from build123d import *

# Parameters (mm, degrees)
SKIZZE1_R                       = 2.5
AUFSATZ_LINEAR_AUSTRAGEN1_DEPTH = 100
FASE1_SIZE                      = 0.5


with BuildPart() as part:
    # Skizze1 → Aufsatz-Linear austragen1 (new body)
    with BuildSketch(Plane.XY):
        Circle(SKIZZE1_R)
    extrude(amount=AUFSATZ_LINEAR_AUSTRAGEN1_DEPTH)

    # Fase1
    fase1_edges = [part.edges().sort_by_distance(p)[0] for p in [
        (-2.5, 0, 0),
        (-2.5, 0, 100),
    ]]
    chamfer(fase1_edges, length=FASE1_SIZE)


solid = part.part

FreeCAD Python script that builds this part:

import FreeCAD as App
import Part
import Sketcher

V = App.Vector
Q = App.Units.Quantity


def edges_at(feature, points):
    """Names of the edges that pass closest to the given points."""
    edges = feature.Shape.Edges
    near = lambda p: min(range(len(edges)), key=lambda i: edges[i].distToShape(Part.Vertex(*p))[0])
    return sorted({f"Edge{near(p) + 1}" for p in points})

doc = App.newDocument("Part")
body = doc.addObject("PartDesign::Body", "Body")

sketch1 = body.newObject("Sketcher::SketchObject", "Sketch")
sketch1.AttachmentSupport = (doc.getObject("XY_Plane"), [""])
sketch1.MapMode = "FlatFace"
sketch1.addGeometry(Part.Circle(V(0, 0, 0), V(0, 0, 1), 2.5), False)
sketch1.addConstraint(Sketcher.Constraint("Coincident", 0, 3, -1, 1))
sketch1.addConstraint(Sketcher.Constraint("Diameter", 0, Q("5 mm")))
pad1 = body.newObject("PartDesign::Pad", "Pad")
pad1.Profile = sketch1
pad1.Length = 100
doc.recompute()

chamfer = body.newObject("PartDesign::Chamfer", "Chamfer")
chamfer.Base = (pad1, edges_at(pad1, [(-2.5, 0, 0), (-2.5, 0, 100)]))
chamfer.Size = 0.5

doc.recompute()
